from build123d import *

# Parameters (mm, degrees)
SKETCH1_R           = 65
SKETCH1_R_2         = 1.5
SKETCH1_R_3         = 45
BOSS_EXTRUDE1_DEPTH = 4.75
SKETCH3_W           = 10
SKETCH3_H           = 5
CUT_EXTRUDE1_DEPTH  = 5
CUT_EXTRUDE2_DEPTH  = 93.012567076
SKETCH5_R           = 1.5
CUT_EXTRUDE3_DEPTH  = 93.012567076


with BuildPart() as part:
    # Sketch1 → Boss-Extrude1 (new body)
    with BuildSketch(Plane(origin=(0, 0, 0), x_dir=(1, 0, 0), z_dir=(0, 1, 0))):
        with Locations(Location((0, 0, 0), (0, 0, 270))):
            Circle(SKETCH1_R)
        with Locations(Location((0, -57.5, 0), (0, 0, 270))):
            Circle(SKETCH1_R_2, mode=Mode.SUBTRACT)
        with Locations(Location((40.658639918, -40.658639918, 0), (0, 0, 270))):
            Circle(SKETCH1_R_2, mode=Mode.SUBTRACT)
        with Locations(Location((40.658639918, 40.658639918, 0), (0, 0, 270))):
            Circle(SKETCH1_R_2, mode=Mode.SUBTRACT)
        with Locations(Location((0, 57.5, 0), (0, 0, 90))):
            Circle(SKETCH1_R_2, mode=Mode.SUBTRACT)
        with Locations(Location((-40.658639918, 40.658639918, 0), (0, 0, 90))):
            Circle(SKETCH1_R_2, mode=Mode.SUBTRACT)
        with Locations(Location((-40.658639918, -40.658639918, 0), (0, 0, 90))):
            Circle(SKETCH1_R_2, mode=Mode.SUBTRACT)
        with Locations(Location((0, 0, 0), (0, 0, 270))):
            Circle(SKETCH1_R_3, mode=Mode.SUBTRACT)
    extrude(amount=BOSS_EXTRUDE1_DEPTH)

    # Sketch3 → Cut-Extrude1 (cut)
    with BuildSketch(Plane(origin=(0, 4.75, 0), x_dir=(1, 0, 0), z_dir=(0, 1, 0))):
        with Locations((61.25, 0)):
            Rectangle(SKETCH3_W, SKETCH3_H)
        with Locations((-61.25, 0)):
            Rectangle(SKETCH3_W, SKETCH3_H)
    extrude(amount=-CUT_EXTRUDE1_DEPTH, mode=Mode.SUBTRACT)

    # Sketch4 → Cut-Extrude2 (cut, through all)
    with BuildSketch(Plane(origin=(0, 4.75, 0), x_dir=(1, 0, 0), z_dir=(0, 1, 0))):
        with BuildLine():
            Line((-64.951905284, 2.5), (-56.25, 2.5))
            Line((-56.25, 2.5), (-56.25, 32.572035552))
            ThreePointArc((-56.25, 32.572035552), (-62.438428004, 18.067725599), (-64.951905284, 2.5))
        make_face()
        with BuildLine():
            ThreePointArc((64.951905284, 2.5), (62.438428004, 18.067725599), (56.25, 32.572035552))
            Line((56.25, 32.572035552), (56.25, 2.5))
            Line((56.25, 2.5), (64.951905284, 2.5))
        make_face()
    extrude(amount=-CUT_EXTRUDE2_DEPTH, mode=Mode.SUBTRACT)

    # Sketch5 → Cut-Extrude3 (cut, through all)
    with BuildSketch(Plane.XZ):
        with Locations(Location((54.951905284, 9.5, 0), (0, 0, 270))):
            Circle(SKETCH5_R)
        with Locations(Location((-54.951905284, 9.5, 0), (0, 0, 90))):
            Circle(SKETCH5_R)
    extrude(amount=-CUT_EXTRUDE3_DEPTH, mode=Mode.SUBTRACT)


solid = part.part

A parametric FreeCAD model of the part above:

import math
import FreeCAD as App
import Part
import Sketcher


def add_polygon(sketch, points):
    """Adds a closed chain of lines whose ends are joined by coincident constraints."""
    first, n = sketch.GeometryCount, len(points)
    for a, b in zip(points, points[1:] + points[:1]):
        sketch.addGeometry(Part.LineSegment(App.Vector(*a, 0), App.Vector(*b, 0)), False)
    for i in range(n):
        sketch.addConstraint(Sketcher.Constraint("Coincident", first + i, 2, first + (i + 1) % n, 1))

doc = App.newDocument("Part")
body = doc.addObject("PartDesign::Body", "Body")

# Sketch on XZ plane
sketch1 = body.newObject("Sketcher::SketchObject", "Sketch")
sketch1.AttachmentSupport = (doc.getObject("XZ_Plane"), [""])
sketch1.MapMode = "FlatFace"
sketch1.addGeometry(Part.Circle(App.Vector(0, 0, 0), App.Vector(0, 0, 1), 65), False)
sketch1.addGeometry(Part.Circle(App.Vector(-40.7, -40.7, 0), App.Vector(0, 0, 1), 1.5), False)
sketch1.addGeometry(Part.Circle(App.Vector(0, -57.5, 0), App.Vector(0, 0, 1), 1.5), False)
sketch1.addGeometry(Part.Circle(App.Vector(-40.7, 40.7, 0), App.Vector(0, 0, 1), 1.5), False)
sketch1.addGeometry(Part.Circle(App.Vector(40.7, -40.7, 0), App.Vector(0, 0, 1), 1.5), False)
sketch1.addGeometry(Part.Circle(App.Vector(0, 0, 0), App.Vector(0, 0, 1), 45), False)
sketch1.addGeometry(Part.Circle(App.Vector(0, 57.5, 0), App.Vector(0, 0, 1), 1.5), False)
sketch1.addGeometry(Part.Circle(App.Vector(40.7, 40.7, 0), App.Vector(0, 0, 1), 1.5), False)
sketch1.addConstraint(Sketcher.Constraint("Coincident", 0, 3, -1, 1))
sketch1.addConstraint(Sketcher.Constraint("Coincident", 5, 3, -1, 1))
sketch1.addConstraint(Sketcher.Constraint("Equal", 1, 2))
sketch1.addConstraint(Sketcher.Constraint("Equal", 2, 3))
sketch1.addConstraint(Sketcher.Constraint("Equal", 3, 4))
sketch1.addConstraint(Sketcher.Constraint("Equal", 4, 6))
sketch1.addConstraint(Sketcher.Constraint("Equal", 6, 7))
sketch1.addConstraint(Sketcher.Constraint("Symmetric", 3, 3, 4, 3, -1, 1))
sketch1.addConstraint(Sketcher.Constraint("Symmetric", 2, 3, 6, 3, -1, 1))
sketch1.addConstraint(Sketcher.Constraint("Symmetric", 1, 3, 7, 3, -1, 1))
sketch1.addConstraint(Sketcher.Constraint("Symmetric", 1, 3, 4, 3, -2))
sketch1.addConstraint(Sketcher.Constraint("PointOnObject", 2, 3, -2))
sketch1.addConstraint(Sketcher.Constraint("Diameter", 0, 130.0))
sketch1.addConstraint(Sketcher.Constraint("Diameter", 1, 3.0))
sketch1.addConstraint(Sketcher.Constraint("Diameter", 5, 90.0))
sketch1.addConstraint(Sketcher.Constraint("DistanceY", 2, 3, -1, 1, 57.5))
sketch1.addConstraint(Sketcher.Constraint("DistanceX", 1, 3, -1, 1, 40.65864))
sketch1.addConstraint(Sketcher.Constraint("DistanceY", 1, 3, -1, 1, 40.65864))
pad1 = body.newObject("PartDesign::Pad", "Pad")
pad1.Profile = sketch1
pad1.Length = 4.75
pad1.Reversed = True

# Sketch on XZ plane
sketch2 = body.newObject("Sketcher::SketchObject", "Sketch001")
sketch2.AttachmentSupport = (doc.getObject("XZ_Plane"), [""])
sketch2.MapMode = "FlatFace"
sketch2.AttachmentOffset = App.Placement(App.Vector(0, 0, -4.75), App.Rotation())
add_polygon(sketch2, [(56, -2), (56, 2), (66, 2), (66, -2)])  # lines 0-3
add_polygon(sketch2, [(-66, -2), (-66, 2), (-56, 2), (-56, -2)])  # lines 4-7
sketch2.addConstraint(Sketcher.Constraint("Vertical", 0))
sketch2.addConstraint(Sketcher.Constraint("Horizontal", 1))
sketch2.addConstraint(Sketcher.Constraint("Vertical", 2))
sketch2.addConstraint(Sketcher.Constraint("Horizontal", 3))
sketch2.addConstraint(Sketcher.Constraint("Vertical", 4))
sketch2.addConstraint(Sketcher.Constraint("Horizontal", 5))
sketch2.addConstraint(Sketcher.Constraint("Vertical", 6))
sketch2.addConstraint(Sketcher.Constraint("Horizontal", 7))
sketch2.addConstraint(Sketcher.Constraint("Symmetric", 2, 2, 4, 2, -1, 1))
sketch2.addConstraint(Sketcher.Constraint("Symmetric", 0, 2, 6, 2, -1, 1))
sketch2.addConstraint(Sketcher.Constraint("Horizontal", 1, 2, 4, 2))
sketch2.addConstraint(Sketcher.Constraint("DistanceX", 1, 1, 1, 2, 10.0))
sketch2.addConstraint(Sketcher.Constraint("DistanceY", 0, 1, 0, 2, 5.0))
sketch2.addConstraint(Sketcher.Constraint("DistanceX", 4, 2, 0, 2, 122.5))
pocket1 = body.newObject("PartDesign::Pocket", "Pocket")
pocket1.Profile = sketch2
pocket1.Length = 5
pocket1.Reversed = True

# Sketch on XZ plane
sketch3 = body.newObject("Sketcher::SketchObject", "Sketch002")
sketch3.AttachmentSupport = (doc.getObject("XZ_Plane"), [""])
sketch3.MapMode = "FlatFace"
sketch3.AttachmentOffset = App.Placement(App.Vector(0, 0, -4.75), App.Rotation())
sketch3.addGeometry(Part.LineSegment(App.Vector(-65, -2, 0), App.Vector(-56, -2, 0)), False)
sketch3.addGeometry(Part.LineSegment(App.Vector(-56, -2, 0), App.Vector(-56, -33, 0)), False)
sketch3.addGeometry(Part.ArcOfCircle(Part.Circle(App.Vector(0, 0, 0), App.Vector(0, 0, 1), 65), math.radians(-178), math.radians(-150)), False)
sketch3.addGeometry(Part.ArcOfCircle(Part.Circle(App.Vector(0, 0, 0), App.Vector(0, 0, 1), 65), math.radians(-30), math.radians(-2)), False)
sketch3.addGeometry(Part.LineSegment(App.Vector(56, -33, 0), App.Vector(56, -2, 0)), False)
sketch3.addGeometry(Part.LineSegment(App.Vector(56, -2, 0), App.Vector(65, -2, 0)), False)
sketch3.addConstraint(Sketcher.Constraint("Coincident", 0, 2, 1, 1))
sketch3.addConstraint(Sketcher.Constraint("Coincident", 1, 2, 2, 2))
sketch3.addConstraint(Sketcher.Constraint("Coincident", 2, 1, 0, 1))
sketch3.addConstraint(Sketcher.Constraint("Coincident", 3, 1, 4, 1))
sketch3.addConstraint(Sketcher.Constraint("Coincident", 4, 2, 5, 1))
sketch3.addConstraint(Sketcher.Constraint("Coincident", 5, 2, 3, 2))
sketch3.addConstraint(Sketcher.Constraint("Horizontal", 0))
sketch3.addConstraint(Sketcher.Constraint("Vertical", 1))
sketch3.addConstraint(Sketcher.Constraint("Vertical", 4))
sketch3.addConstraint(Sketcher.Constraint("Horizontal", 5))
sketch3.addConstraint(Sketcher.Constraint("Coincident", 2, 3, -1, 1))
sketch3.addConstraint(Sketcher.Constraint("Coincident", 3, 3, -1, 1))
sketch3.addConstraint(Sketcher.Constraint("Equal", 2, 3))
sketch3.addConstraint(Sketcher.Constraint("Symmetric", 0, 2, 4, 2, -2))
sketch3.addConstraint(Sketcher.Constraint("Radius", 2, 65.0))
sketch3.addConstraint(Sketcher.Constraint("DistanceY", 0, 2, -1, 1, 2.5))
sketch3.addConstraint(Sketcher.Constraint("DistanceX", 1, 2, 3, 1, 112.5))
pocket2 = body.newObject("PartDesign::Pocket", "Pocket001")
pocket2.Profile = sketch3
pocket2.Type = "ThroughAll"
pocket2.Reversed = True

# Sketch on XZ plane
sketch4 = body.newObject("Sketcher::SketchObject", "Sketch003")
sketch4.AttachmentSupport = (doc.getObject("XZ_Plane"), [""])
sketch4.MapMode = "FlatFace"
sketch4.addGeometry(Part.Circle(App.Vector(55, 9.5, 0), App.Vector(0, 0, 1), 1.5), False)
sketch4.addGeometry(Part.Circle(App.Vector(-55, 9.5, 0), App.Vector(0, 0, 1), 1.5), False)
sketch4.addConstraint(Sketcher.Constraint("Equal", 0, 1))
sketch4.addConstraint(Sketcher.Constraint("Symmetric", 0, 3, 1, 3, -2))
sketch4.addConstraint(Sketcher.Constraint("Diameter", 0, 3.0))
sketch4.addConstraint(Sketcher.Constraint("DistanceY", -1, 1, 0, 3, 9.5))
sketch4.addConstraint(Sketcher.Constraint("DistanceX", 1, 3, 0, 3, 109.903811))
pocket3 = body.newObject("PartDesign::Pocket", "Pocket002")
pocket3.Profile = sketch4
pocket3.Type = "ThroughAll"

doc.recompute()
